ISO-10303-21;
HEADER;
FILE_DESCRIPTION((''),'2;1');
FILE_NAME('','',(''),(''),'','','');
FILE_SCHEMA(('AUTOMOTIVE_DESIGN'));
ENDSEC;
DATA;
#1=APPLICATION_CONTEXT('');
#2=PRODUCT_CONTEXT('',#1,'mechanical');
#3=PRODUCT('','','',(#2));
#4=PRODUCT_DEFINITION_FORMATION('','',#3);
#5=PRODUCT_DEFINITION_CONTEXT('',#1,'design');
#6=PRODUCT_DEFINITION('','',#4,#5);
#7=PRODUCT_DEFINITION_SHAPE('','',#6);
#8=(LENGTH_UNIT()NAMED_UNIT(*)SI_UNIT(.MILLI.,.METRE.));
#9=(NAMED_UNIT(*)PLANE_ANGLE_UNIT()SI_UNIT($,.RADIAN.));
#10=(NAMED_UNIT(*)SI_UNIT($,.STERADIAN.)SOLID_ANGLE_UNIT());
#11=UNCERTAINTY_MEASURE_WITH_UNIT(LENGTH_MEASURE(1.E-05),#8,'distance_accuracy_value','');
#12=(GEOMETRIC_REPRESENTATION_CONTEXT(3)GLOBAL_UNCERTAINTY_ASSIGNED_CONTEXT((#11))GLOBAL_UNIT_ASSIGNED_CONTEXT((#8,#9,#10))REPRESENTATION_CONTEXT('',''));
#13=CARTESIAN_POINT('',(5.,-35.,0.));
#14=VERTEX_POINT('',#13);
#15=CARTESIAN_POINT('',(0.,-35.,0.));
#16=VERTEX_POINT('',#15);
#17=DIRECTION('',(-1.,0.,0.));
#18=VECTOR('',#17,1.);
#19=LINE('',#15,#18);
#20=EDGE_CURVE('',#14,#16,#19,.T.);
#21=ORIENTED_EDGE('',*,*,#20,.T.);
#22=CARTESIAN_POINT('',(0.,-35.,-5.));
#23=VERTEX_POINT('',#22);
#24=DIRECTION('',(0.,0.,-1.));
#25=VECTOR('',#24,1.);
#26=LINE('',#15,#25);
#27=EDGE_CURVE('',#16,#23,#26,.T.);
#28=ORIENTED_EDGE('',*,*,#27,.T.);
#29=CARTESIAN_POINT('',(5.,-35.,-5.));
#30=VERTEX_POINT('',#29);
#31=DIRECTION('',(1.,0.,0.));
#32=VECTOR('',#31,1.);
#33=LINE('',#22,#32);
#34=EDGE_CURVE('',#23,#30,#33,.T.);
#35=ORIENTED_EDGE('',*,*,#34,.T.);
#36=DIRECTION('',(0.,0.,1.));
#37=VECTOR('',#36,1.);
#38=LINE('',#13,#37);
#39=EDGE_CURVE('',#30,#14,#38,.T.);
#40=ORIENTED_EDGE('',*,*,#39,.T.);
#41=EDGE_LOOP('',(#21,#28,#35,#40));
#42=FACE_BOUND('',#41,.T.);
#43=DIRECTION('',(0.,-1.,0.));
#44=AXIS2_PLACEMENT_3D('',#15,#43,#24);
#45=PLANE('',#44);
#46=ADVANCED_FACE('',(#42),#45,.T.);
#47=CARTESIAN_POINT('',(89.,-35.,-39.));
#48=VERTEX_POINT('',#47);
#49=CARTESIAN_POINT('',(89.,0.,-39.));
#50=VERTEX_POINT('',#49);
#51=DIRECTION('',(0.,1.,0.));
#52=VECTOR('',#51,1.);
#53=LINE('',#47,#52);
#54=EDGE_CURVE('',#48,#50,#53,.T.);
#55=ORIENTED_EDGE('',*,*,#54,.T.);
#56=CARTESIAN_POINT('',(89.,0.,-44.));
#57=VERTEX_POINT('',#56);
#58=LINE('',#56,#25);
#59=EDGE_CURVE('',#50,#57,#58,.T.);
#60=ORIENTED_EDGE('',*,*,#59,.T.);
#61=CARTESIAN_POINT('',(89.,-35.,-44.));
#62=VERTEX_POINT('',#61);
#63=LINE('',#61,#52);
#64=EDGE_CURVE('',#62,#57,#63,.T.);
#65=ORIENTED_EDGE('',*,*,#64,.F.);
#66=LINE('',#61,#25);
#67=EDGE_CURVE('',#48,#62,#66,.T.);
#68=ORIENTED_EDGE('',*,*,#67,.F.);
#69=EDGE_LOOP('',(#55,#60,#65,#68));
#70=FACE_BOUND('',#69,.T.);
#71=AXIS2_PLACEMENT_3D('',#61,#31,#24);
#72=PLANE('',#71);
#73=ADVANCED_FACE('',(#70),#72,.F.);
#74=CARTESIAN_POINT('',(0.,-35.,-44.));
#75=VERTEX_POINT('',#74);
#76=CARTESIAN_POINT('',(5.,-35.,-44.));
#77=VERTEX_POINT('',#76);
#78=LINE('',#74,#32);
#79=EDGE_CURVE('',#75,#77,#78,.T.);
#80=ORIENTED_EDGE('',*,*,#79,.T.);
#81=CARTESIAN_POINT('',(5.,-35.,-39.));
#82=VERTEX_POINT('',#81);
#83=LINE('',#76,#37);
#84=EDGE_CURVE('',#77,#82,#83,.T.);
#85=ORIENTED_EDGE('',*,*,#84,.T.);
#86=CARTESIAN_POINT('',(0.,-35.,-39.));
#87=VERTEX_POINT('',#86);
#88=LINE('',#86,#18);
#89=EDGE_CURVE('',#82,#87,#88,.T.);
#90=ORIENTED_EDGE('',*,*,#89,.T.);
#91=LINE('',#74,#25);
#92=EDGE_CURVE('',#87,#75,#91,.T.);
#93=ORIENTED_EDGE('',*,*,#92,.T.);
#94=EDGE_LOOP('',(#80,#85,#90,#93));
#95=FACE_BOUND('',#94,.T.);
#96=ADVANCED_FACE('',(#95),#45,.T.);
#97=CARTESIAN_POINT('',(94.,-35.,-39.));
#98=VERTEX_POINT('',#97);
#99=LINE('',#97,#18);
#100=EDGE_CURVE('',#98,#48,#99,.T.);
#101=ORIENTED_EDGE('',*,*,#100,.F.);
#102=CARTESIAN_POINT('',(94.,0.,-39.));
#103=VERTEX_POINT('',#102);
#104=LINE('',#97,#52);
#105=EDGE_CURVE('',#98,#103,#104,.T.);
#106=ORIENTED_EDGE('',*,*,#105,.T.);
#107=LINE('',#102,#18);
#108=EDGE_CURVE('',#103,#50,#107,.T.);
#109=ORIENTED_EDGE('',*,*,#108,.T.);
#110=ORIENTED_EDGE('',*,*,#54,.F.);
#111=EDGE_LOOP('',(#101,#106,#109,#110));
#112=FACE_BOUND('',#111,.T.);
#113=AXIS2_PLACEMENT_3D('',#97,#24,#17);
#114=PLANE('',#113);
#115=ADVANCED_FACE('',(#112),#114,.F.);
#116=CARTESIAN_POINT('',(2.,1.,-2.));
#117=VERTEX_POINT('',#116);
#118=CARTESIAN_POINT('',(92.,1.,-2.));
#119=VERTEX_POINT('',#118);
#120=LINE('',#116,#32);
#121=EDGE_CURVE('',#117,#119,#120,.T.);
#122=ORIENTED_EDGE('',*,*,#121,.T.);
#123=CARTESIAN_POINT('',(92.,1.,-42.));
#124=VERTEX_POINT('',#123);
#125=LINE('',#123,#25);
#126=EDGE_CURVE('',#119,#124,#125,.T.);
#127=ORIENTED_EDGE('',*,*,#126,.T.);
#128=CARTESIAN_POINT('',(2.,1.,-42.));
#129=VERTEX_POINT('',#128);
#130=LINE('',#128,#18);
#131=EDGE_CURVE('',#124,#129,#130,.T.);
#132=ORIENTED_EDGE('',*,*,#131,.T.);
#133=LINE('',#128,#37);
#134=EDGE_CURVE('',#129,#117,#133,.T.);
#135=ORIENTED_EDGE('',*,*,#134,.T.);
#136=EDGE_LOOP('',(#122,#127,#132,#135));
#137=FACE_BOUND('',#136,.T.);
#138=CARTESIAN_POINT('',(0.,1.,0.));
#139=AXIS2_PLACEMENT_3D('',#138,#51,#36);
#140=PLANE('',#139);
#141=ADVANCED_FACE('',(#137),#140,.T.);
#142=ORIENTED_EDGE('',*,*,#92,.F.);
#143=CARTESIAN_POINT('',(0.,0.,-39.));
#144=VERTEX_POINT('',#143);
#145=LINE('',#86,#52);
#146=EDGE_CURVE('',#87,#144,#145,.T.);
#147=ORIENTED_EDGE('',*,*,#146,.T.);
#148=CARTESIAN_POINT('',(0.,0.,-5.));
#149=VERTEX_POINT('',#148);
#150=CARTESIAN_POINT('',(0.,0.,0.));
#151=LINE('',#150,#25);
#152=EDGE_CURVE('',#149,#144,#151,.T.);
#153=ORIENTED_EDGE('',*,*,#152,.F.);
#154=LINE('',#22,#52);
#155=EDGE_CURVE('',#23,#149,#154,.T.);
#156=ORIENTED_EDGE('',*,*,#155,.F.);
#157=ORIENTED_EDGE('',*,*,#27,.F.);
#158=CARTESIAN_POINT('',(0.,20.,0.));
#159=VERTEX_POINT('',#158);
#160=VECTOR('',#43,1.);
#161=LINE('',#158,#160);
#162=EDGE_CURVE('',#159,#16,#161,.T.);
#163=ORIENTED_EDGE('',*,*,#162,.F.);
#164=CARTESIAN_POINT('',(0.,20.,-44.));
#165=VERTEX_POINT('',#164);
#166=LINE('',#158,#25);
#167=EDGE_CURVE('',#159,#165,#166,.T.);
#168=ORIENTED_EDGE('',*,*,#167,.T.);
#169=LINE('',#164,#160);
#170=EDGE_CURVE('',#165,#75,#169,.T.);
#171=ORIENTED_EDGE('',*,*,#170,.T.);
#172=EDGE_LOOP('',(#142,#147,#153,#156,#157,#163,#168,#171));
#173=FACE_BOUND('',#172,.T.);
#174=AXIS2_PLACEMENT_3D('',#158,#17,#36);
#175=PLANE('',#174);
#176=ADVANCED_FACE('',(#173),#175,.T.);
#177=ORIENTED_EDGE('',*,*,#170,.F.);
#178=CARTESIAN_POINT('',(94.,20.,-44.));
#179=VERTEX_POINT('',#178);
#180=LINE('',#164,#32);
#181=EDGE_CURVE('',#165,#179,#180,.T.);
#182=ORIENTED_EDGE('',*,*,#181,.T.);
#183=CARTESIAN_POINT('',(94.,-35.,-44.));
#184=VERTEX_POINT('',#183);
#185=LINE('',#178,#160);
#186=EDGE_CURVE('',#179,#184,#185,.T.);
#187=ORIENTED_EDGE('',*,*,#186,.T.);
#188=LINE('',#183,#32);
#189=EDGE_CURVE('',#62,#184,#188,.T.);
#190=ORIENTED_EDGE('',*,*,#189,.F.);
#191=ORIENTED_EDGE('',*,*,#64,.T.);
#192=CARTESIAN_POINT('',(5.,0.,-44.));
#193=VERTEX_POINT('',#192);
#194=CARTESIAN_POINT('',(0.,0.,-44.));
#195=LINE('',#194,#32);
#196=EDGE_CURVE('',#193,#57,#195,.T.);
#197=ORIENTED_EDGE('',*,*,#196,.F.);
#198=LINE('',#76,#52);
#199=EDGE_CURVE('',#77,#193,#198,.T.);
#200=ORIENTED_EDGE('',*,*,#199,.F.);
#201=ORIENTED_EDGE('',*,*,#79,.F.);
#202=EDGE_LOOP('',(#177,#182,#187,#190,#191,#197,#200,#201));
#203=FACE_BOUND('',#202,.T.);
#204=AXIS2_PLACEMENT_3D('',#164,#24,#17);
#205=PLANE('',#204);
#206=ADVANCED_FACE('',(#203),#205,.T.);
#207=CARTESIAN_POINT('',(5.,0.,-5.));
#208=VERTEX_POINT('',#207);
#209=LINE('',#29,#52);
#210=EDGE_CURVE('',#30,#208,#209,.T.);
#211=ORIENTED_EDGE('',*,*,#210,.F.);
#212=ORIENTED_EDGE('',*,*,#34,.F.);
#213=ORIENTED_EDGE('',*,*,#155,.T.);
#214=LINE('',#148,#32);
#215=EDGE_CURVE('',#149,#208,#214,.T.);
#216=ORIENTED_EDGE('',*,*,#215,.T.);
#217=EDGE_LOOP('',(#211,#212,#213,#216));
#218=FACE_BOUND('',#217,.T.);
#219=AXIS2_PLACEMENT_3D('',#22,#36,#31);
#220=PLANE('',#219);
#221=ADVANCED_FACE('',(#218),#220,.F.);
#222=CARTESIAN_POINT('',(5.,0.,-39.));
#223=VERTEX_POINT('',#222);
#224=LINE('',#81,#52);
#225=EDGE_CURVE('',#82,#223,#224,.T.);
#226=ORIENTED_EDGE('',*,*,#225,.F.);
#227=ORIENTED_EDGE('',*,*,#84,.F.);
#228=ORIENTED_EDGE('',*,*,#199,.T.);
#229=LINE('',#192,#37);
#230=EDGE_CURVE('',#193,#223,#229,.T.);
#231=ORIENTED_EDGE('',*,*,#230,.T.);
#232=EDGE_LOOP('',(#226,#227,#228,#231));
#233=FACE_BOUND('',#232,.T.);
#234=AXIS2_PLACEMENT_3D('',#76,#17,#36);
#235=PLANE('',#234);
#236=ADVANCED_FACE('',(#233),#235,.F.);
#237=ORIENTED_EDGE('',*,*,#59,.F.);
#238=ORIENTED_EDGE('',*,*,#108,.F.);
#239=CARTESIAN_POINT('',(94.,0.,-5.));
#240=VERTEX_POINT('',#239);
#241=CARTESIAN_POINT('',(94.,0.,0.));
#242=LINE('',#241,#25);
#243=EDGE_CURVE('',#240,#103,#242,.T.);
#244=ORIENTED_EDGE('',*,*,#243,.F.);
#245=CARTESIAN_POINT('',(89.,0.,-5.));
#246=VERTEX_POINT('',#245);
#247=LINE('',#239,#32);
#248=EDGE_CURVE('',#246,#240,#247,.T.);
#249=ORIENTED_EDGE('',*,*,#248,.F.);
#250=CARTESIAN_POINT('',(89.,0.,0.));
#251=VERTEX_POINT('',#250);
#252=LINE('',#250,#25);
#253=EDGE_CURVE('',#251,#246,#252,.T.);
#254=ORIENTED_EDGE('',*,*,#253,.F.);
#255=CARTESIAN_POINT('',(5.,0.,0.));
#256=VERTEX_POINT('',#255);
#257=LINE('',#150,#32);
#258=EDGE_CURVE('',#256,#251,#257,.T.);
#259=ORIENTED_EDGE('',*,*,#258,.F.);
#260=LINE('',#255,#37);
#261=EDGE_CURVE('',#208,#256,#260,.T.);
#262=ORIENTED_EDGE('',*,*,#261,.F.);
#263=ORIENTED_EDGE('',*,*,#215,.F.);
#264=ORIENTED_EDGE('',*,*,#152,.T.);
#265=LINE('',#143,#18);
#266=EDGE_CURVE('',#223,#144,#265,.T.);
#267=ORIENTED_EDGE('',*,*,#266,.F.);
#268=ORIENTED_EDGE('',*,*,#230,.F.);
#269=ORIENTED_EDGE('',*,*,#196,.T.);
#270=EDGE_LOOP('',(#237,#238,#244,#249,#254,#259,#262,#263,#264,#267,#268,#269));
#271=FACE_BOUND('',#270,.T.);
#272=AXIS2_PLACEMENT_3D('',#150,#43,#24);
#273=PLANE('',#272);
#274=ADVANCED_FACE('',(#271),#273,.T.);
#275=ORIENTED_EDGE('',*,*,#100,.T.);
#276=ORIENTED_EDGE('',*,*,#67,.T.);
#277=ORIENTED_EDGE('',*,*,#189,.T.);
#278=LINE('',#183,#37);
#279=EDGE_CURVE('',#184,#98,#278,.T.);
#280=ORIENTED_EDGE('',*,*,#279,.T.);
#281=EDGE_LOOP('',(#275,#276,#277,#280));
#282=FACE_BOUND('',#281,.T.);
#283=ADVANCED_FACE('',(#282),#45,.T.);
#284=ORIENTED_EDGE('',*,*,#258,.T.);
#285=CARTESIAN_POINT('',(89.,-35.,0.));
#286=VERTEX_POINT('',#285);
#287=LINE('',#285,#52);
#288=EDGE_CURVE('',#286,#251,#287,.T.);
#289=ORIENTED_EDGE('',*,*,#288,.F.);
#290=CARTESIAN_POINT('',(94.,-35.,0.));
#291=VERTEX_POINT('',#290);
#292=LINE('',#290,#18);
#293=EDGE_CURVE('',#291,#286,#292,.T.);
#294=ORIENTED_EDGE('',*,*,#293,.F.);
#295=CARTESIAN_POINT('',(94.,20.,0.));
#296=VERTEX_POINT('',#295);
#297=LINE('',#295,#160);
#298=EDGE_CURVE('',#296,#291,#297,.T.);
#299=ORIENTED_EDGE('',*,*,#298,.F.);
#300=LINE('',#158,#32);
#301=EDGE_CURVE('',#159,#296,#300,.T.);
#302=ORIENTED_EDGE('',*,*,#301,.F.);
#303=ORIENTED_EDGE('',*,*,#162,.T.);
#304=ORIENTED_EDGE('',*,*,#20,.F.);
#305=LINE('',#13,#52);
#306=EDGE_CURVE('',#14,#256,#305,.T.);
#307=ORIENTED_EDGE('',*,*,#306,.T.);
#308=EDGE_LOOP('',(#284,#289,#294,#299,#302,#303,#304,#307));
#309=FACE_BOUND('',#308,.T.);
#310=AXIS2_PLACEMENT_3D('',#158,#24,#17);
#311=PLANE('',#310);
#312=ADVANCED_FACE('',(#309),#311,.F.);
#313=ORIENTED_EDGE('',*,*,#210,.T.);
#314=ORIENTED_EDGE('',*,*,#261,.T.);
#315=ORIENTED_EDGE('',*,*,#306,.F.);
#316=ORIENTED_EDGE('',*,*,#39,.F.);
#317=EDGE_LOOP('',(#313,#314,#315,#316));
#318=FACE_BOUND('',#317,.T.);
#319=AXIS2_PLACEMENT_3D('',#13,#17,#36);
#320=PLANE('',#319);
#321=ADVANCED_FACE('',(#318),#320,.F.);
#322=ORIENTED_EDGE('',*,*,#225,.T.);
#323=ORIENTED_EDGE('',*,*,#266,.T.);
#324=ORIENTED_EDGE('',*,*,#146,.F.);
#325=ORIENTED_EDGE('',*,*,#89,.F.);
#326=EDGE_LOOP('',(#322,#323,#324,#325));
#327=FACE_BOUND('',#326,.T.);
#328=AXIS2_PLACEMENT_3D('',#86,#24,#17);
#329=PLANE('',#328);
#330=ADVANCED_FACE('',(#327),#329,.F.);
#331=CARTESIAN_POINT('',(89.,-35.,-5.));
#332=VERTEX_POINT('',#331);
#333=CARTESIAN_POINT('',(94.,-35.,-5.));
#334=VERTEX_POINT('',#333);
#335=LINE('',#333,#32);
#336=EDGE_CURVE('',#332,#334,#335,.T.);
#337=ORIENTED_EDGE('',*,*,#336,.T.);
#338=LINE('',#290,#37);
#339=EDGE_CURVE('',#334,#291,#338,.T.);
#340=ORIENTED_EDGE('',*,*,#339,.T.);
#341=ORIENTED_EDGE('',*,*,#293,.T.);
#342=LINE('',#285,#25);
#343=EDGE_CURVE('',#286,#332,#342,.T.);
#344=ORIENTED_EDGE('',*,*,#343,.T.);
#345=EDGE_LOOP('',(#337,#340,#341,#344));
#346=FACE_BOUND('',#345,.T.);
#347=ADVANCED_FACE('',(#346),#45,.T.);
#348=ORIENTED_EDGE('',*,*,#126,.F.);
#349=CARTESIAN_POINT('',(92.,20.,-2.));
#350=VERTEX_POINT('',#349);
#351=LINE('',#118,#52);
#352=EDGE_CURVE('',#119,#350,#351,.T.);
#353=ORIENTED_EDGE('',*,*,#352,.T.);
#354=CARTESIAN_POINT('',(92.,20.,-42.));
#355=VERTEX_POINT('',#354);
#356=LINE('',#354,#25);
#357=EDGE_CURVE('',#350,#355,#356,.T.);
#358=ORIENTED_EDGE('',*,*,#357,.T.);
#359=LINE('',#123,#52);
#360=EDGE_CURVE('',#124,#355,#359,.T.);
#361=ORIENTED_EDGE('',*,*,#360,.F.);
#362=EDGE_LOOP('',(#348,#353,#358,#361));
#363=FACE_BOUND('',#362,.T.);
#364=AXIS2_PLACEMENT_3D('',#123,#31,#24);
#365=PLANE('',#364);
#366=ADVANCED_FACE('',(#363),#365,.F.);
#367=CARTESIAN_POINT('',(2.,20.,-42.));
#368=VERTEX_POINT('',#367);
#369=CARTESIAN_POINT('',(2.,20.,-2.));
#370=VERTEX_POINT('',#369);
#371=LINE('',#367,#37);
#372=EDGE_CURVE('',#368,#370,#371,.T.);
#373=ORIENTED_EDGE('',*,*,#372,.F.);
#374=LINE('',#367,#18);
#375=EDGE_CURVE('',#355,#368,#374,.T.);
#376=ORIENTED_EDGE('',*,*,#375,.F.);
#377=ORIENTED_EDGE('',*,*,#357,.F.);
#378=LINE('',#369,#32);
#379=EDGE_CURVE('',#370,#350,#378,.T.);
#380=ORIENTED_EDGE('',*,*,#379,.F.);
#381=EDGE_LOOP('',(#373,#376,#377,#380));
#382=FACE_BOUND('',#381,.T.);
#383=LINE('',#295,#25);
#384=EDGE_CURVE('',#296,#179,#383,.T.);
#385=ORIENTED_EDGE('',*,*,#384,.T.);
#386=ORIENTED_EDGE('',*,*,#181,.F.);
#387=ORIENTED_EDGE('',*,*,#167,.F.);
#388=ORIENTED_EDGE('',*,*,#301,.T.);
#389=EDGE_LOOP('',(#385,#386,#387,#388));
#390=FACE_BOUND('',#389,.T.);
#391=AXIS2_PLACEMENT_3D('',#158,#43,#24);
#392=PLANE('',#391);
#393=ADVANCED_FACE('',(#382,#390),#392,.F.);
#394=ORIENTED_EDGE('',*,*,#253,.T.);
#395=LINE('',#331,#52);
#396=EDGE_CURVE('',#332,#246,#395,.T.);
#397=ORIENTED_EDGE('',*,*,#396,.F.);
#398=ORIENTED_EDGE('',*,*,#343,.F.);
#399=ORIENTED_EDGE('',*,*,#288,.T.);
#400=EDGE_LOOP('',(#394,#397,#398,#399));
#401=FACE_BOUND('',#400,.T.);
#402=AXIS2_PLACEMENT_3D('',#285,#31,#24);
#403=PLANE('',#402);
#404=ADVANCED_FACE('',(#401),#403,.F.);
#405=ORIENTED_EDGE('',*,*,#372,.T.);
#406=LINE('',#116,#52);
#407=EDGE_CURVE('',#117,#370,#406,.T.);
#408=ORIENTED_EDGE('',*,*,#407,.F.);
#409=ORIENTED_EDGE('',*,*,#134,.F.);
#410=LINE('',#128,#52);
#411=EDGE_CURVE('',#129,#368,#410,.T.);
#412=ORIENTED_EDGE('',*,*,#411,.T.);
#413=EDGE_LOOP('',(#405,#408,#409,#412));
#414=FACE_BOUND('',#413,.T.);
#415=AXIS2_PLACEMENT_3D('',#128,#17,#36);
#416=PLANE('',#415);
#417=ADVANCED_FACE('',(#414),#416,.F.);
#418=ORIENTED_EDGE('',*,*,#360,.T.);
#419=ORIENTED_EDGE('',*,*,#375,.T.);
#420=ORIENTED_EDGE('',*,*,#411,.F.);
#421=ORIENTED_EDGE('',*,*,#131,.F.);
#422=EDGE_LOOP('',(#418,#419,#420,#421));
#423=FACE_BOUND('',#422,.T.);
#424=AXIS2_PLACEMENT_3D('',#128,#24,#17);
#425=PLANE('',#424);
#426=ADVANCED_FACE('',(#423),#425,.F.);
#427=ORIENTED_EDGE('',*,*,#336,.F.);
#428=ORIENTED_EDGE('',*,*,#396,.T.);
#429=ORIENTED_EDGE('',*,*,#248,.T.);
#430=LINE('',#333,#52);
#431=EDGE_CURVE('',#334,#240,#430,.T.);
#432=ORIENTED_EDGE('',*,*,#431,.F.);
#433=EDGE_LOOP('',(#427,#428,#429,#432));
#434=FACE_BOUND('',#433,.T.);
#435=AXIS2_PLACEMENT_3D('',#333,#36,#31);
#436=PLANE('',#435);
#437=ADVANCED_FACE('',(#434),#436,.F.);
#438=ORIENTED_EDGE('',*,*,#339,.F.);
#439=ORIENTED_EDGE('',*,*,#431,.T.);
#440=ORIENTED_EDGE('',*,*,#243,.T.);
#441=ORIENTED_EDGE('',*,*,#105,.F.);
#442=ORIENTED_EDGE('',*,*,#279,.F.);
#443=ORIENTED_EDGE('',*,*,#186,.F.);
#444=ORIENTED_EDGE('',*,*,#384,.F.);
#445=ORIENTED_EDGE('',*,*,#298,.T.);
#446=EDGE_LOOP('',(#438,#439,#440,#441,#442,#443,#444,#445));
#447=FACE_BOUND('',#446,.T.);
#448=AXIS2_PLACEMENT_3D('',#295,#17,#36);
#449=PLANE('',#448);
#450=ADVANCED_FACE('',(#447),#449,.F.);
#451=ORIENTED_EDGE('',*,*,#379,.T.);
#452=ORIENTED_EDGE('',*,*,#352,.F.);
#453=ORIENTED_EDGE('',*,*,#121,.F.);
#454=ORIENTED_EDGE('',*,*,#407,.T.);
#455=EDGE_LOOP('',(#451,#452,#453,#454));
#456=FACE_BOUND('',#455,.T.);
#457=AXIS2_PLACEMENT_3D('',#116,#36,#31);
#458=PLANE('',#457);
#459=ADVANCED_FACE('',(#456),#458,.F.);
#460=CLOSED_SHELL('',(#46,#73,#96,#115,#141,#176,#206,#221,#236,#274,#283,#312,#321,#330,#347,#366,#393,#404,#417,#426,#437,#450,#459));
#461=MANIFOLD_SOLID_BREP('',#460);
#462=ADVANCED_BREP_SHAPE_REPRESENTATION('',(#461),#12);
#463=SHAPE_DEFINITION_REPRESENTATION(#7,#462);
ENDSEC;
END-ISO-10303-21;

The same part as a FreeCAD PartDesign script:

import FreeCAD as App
import Part
import Sketcher

V = App.Vector
Q = App.Units.Quantity


def add_polygon(sketch, points):
    """Adds a closed chain of lines whose ends are joined by coincident constraints."""
    first, n = sketch.GeometryCount, len(points)
    for a, b in zip(points, points[1:] + points[:1]):
        sketch.addGeometry(Part.LineSegment(App.Vector(*a, 0), App.Vector(*b, 0)), False)
    for i in range(n):
        sketch.addConstraint(Sketcher.Constraint("Coincident", first + i, 2, first + (i + 1) % n, 1))

doc = App.newDocument("Part")
params = doc.addObject("Spreadsheet::Sheet", "Params")
for row, (alias, value) in enumerate([
    ("sketch1_width", "94 mm"),
    ("sketch1_height", "44 mm"),
    ("pad1_length", "20 mm"),
    ("sketch2_width", "90 mm"),
    ("sketch2_height", "40 mm"),
    ("pocket1_length", "19 mm"),
    ("sketch3_width", "5 mm"),
    ("pad2_length", "35 mm"),
], start=1):
    params.set(f"A{row}", alias)
    params.set(f"B{row}", "=" + value)
    params.setAlias(f"B{row}", alias)

body = doc.addObject("PartDesign::Body", "Body")

# Sketch on XZ plane
sketch1 = doc.addObject("Sketcher::SketchObject", "Sketch")
body.addObject(sketch1)
sketch1.AttachmentSupport = (doc.XZ_Plane, [""])
sketch1.MapMode = "FlatFace"
add_polygon(sketch1, [(0, -44), (0, 0), (94, 0), (94, -44)])  # lines 0-3
sketch1.addConstraint([
    Sketcher.Constraint("Vertical", 0),
    Sketcher.Constraint("Horizontal", 1),
    Sketcher.Constraint("Vertical", 2),
    Sketcher.Constraint("Horizontal", 3),
    Sketcher.Constraint("Coincident", 0, 2, -1, 1),
    Sketcher.Constraint("DistanceX", 1, 1, 1, 2, Q("94 mm")),
    Sketcher.Constraint("DistanceY", 0, 1, 0, 2, Q("44 mm")),
])
sketch1.setExpression("Constraints[9]", "Params.sketch1_width")
sketch1.setExpression("Constraints[10]", "Params.sketch1_height")
pad1 = doc.addObject("PartDesign::Pad", "Pad")
body.addObject(pad1)
pad1.Profile = sketch1
pad1.setExpression("Length", "Params.pad1_length")
pad1.Reversed = True

# Sketch on XZ plane
sketch2 = doc.addObject("Sketcher::SketchObject", "Sketch001")
body.addObject(sketch2)
sketch2.AttachmentSupport = (doc.XZ_Plane, [""])
sketch2.MapMode = "FlatFace"
sketch2.AttachmentOffset = App.Placement(V(0, 0, -20), App.Rotation())
add_polygon(sketch2, [(2, -42), (2, -2), (92, -2), (92, -42)])  # lines 0-3
sketch2.addConstraint([
    Sketcher.Constraint("Vertical", 0),
    Sketcher.Constraint("Horizontal", 1),
    Sketcher.Constraint("Vertical", 2),
    Sketcher.Constraint("Horizontal", 3),
    Sketcher.Constraint("DistanceX", 1, 1, 1, 2, Q("90 mm")),
    Sketcher.Constraint("DistanceY", 0, 1, 0, 2, Q("40 mm")),
    Sketcher.Constraint("DistanceX", -1, 1, 0, 2, Q("2 mm")),
    Sketcher.Constraint("DistanceY", 0, 2, -1, 1, Q("2 mm")),
])
sketch2.setExpression("Constraints[8]", "Params.sketch2_width")
sketch2.setExpression("Constraints[9]", "Params.sketch2_height")
pocket1 = doc.addObject("PartDesign::Pocket", "Pocket")
body.addObject(pocket1)
pocket1.Profile = sketch2
pocket1.setExpression("Length", "Params.pocket1_length")
pocket1.Reversed = True

# Sketch on XZ plane
sketch3 = doc.addObject("Sketcher::SketchObject", "Sketch002")
body.addObject(sketch3)
sketch3.AttachmentSupport = (doc.XZ_Plane, [""])
sketch3.MapMode = "FlatFace"
add_polygon(sketch3, [(0, 0), (0, -5), (5, -5), (5, 0)])  # lines 0-3
add_polygon(sketch3, [(89, 0), (89, -5), (94, -5), (94, 0)])  # lines 4-7
add_polygon(sketch3, [(89, -39), (89, -44), (94, -44), (94, -39)])  # lines 8-11
add_polygon(sketch3, [(0, -39), (0, -44), (5, -44), (5, -39)])  # lines 12-15
sketch3.addConstraint([
    Sketcher.Constraint("Vertical", 0),
    Sketcher.Constraint("Horizontal", 1),
    Sketcher.Constraint("Vertical", 2),
    Sketcher.Constraint("Horizontal", 3),
    Sketcher.Constraint("Vertical", 4),
    Sketcher.Constraint("Horizontal", 5),
    Sketcher.Constraint("Vertical", 6),
    Sketcher.Constraint("Horizontal", 7),
    Sketcher.Constraint("Vertical", 8),
    Sketcher.Constraint("Horizontal", 9),
    Sketcher.Constraint("Vertical", 10),
    Sketcher.Constraint("Horizontal", 11),
    Sketcher.Constraint("Vertical", 12),
    Sketcher.Constraint("Horizontal", 13),
    Sketcher.Constraint("Vertical", 14),
    Sketcher.Constraint("Horizontal", 15),
    Sketcher.Constraint("Coincident", 3, 2, -1, 1),
    Sketcher.Constraint("PointOnObject", 6, 2, -1),
    Sketcher.Constraint("PointOnObject", 12, 2, -2),
    Sketcher.Constraint("Horizontal", 1, 2, 4, 2),
    Sketcher.Constraint("Horizontal", 9, 2, 12, 2),
    Sketcher.Constraint("Horizontal", 11, 2, 14, 2),
    Sketcher.Constraint("Vertical", 7, 2, 8, 2),
    Sketcher.Constraint("Vertical", 6, 2, 9, 2),
    Sketcher.Constraint("Vertical", 2, 2, 13, 2),
    Sketcher.Constraint("Equal", 3, 5),
    Sketcher.Constraint("Equal", 15, 0),
    Sketcher.Constraint("Equal", 6, 8),
    Sketcher.Constraint("DistanceX", 1, 1, 1, 2, Q("5 mm")),
    Sketcher.Constraint("DistanceX", -1, 1, 4, 2, Q("89 mm")),
    Sketcher.Constraint("DistanceY", 8, 2, -1, 1, Q("44 mm")),
])
sketch3.setExpression("Constraints[44]", "Params.sketch3_width")
pad2 = doc.addObject("PartDesign::Pad", "Pad001")
body.addObject(pad2)
pad2.Profile = sketch3
pad2.setExpression("Length", "Params.pad2_length")

doc.recompute()
